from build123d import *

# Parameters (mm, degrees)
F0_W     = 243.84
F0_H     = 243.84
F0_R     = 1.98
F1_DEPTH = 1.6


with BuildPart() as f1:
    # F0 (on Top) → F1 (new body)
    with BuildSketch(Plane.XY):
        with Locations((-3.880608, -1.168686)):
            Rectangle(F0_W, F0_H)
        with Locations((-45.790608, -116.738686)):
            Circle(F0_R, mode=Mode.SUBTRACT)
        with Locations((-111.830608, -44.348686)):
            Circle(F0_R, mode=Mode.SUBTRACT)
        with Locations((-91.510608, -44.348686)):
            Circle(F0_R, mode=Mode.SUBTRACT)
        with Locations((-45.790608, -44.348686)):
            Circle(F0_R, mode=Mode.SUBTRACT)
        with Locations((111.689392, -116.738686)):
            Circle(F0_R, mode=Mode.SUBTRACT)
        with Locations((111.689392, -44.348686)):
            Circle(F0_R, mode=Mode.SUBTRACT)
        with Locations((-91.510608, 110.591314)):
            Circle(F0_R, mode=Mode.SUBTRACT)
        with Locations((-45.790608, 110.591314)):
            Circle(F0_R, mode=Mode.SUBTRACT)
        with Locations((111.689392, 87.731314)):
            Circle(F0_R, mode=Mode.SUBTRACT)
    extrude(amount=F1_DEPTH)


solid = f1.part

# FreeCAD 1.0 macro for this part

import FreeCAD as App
import Part
import Sketcher
from FreeCAD import Vector
Q = App.Units.Quantity

doc = App.newDocument("Part")
body = doc.addObject("PartDesign::Body", "Body")

# Sketch on XY plane
sketch1 = body.newObject("Sketcher::SketchObject", "Sketch")
sketch1.AttachmentSupport = (doc.getObject("XY_Plane"), [""])
sketch1.MapMode = "FlatFace"
sketch1.addGeometry(Part.LineSegment(Vector(-125.8, 120.8, 0), Vector(-125.8, -123.1, 0)), False)
sketch1.addGeometry(Part.LineSegment(Vector(-125.8, -123.1, 0), Vector(118, -123.1, 0)), False)
sketch1.addGeometry(Part.LineSegment(Vector(118, -123.1, 0), Vector(118, 120.8, 0)), False)
sketch1.addGeometry(Part.LineSegment(Vector(118, 120.8, 0), Vector(-125.8, 120.8, 0)), False)
sketch1.addGeometry(Part.Circle(Vector(-45.8, -116.7, 0), Vector(0, 0, 1), 2), False)
sketch1.addGeometry(Part.Circle(Vector(-111.8, -44.3, 0), Vector(0, 0, 1), 2), False)
sketch1.addGeometry(Part.Circle(Vector(-91.5, -44.3, 0), Vector(0, 0, 1), 2), False)
sketch1.addGeometry(Part.Circle(Vector(-45.8, -44.3, 0), Vector(0, 0, 1), 2), False)
sketch1.addGeometry(Part.Circle(Vector(111.7, -116.7, 0), Vector(0, 0, 1), 2), False)
sketch1.addGeometry(Part.Circle(Vector(111.7, -44.3, 0), Vector(0, 0, 1), 2), False)
sketch1.addGeometry(Part.Circle(Vector(-91.5, 110.6, 0), Vector(0, 0, 1), 2), False)
sketch1.addGeometry(Part.Circle(Vector(-45.8, 110.6, 0), Vector(0, 0, 1), 2), False)
sketch1.addGeometry(Part.Circle(Vector(111.7, 87.7, 0), Vector(0, 0, 1), 2), False)
sketch1.addConstraint(Sketcher.Constraint("Coincident", 0, 2, 1, 1))
sketch1.addConstraint(Sketcher.Constraint("Coincident", 1, 2, 2, 1))
sketch1.addConstraint(Sketcher.Constraint("Coincident", 2, 2, 3, 1))
sketch1.addConstraint(Sketcher.Constraint("Coincident", 3, 2, 0, 1))
sketch1.addConstraint(Sketcher.Constraint("Vertical", 0))
sketch1.addConstraint(Sketcher.Constraint("Horizontal", 1))
sketch1.addConstraint(Sketcher.Constraint("Vertical", 2))
sketch1.addConstraint(Sketcher.Constraint("Horizontal", 3))
sketch1.addConstraint(Sketcher.Constraint("Equal", 4, 5))
sketch1.addConstraint(Sketcher.Constraint("Equal", 5, 6))
sketch1.addConstraint(Sketcher.Constraint("Equal", 6, 7))
sketch1.addConstraint(Sketcher.Constraint("Equal", 7, 8))
sketch1.addConstraint(Sketcher.Constraint("Equal", 8, 9))
sketch1.addConstraint(Sketcher.Constraint("Equal", 9, 10))
sketch1.addConstraint(Sketcher.Constraint("Equal", 10, 11))
sketch1.addConstraint(Sketcher.Constraint("Equal", 11, 12))
sketch1.addConstraint(Sketcher.Constraint("Horizontal", 5, 3, 6, 3))
sketch1.addConstraint(Sketcher.Constraint("Horizontal", 6, 3, 7, 3))
sketch1.addConstraint(Sketcher.Constraint("Horizontal", 4, 3, 8, 3))
sketch1.addConstraint(Sketcher.Constraint("Horizontal", 7, 3, 9, 3))
sketch1.addConstraint(Sketcher.Constraint("Horizontal", 10, 3, 11, 3))
sketch1.addConstraint(Sketcher.Constraint("Vertical", 4, 3, 7, 3))
sketch1.addConstraint(Sketcher.Constraint("Vertical", 8, 3, 9, 3))
sketch1.addConstraint(Sketcher.Constraint("Vertical", 6, 3, 10, 3))
sketch1.addConstraint(Sketcher.Constraint("Vertical", 7, 3, 11, 3))
sketch1.addConstraint(Sketcher.Constraint("Vertical", 9, 3, 12, 3))
sketch1.addConstraint(Sketcher.Constraint("Equal", 3, 0))
sketch1.addConstraint(Sketcher.Constraint("Diameter", 4, Q("3.96 mm")))
sketch1.addConstraint(Sketcher.Constraint("DistanceX", 1, 1, 1, 2, Q("243.84 mm")))
sketch1.addConstraint(Sketcher.Constraint("DistanceX", 6, 3, 8, 3, Q("203.2 mm")))
sketch1.addConstraint(Sketcher.Constraint("DistanceY", 9, 3, 2, 2, Q("165.1 mm")))
sketch1.addConstraint(Sketcher.Constraint("DistanceX", 5, 3, 4, 3, Q("66.04 mm")))
sketch1.addConstraint(Sketcher.Constraint("DistanceY", 4, 3, 5, 3, Q("72.39 mm")))
sketch1.addConstraint(Sketcher.Constraint("DistanceX", 5, 3, 6, 3, Q("20.32 mm")))
sketch1.addConstraint(Sketcher.Constraint("DistanceY", 6, 3, 10, 3, Q("154.94 mm")))
sketch1.addConstraint(Sketcher.Constraint("DistanceY", 9, 3, 12, 3, Q("132.08 mm")))
sketch1.addConstraint(Sketcher.Constraint("DistanceX", 0, 2, 5, 3, Q("13.97 mm")))
sketch1.addConstraint(Sketcher.Constraint("DistanceX", 5, 3, -1, 1, Q("111.830608 mm")))
sketch1.addConstraint(Sketcher.Constraint("DistanceY", 4, 3, -1, 1, Q("116.738686 mm")))
pad1 = body.newObject("PartDesign::Pad", "Pad")
pad1.Profile = sketch1
pad1.Length = 1.6

doc.recompute()
